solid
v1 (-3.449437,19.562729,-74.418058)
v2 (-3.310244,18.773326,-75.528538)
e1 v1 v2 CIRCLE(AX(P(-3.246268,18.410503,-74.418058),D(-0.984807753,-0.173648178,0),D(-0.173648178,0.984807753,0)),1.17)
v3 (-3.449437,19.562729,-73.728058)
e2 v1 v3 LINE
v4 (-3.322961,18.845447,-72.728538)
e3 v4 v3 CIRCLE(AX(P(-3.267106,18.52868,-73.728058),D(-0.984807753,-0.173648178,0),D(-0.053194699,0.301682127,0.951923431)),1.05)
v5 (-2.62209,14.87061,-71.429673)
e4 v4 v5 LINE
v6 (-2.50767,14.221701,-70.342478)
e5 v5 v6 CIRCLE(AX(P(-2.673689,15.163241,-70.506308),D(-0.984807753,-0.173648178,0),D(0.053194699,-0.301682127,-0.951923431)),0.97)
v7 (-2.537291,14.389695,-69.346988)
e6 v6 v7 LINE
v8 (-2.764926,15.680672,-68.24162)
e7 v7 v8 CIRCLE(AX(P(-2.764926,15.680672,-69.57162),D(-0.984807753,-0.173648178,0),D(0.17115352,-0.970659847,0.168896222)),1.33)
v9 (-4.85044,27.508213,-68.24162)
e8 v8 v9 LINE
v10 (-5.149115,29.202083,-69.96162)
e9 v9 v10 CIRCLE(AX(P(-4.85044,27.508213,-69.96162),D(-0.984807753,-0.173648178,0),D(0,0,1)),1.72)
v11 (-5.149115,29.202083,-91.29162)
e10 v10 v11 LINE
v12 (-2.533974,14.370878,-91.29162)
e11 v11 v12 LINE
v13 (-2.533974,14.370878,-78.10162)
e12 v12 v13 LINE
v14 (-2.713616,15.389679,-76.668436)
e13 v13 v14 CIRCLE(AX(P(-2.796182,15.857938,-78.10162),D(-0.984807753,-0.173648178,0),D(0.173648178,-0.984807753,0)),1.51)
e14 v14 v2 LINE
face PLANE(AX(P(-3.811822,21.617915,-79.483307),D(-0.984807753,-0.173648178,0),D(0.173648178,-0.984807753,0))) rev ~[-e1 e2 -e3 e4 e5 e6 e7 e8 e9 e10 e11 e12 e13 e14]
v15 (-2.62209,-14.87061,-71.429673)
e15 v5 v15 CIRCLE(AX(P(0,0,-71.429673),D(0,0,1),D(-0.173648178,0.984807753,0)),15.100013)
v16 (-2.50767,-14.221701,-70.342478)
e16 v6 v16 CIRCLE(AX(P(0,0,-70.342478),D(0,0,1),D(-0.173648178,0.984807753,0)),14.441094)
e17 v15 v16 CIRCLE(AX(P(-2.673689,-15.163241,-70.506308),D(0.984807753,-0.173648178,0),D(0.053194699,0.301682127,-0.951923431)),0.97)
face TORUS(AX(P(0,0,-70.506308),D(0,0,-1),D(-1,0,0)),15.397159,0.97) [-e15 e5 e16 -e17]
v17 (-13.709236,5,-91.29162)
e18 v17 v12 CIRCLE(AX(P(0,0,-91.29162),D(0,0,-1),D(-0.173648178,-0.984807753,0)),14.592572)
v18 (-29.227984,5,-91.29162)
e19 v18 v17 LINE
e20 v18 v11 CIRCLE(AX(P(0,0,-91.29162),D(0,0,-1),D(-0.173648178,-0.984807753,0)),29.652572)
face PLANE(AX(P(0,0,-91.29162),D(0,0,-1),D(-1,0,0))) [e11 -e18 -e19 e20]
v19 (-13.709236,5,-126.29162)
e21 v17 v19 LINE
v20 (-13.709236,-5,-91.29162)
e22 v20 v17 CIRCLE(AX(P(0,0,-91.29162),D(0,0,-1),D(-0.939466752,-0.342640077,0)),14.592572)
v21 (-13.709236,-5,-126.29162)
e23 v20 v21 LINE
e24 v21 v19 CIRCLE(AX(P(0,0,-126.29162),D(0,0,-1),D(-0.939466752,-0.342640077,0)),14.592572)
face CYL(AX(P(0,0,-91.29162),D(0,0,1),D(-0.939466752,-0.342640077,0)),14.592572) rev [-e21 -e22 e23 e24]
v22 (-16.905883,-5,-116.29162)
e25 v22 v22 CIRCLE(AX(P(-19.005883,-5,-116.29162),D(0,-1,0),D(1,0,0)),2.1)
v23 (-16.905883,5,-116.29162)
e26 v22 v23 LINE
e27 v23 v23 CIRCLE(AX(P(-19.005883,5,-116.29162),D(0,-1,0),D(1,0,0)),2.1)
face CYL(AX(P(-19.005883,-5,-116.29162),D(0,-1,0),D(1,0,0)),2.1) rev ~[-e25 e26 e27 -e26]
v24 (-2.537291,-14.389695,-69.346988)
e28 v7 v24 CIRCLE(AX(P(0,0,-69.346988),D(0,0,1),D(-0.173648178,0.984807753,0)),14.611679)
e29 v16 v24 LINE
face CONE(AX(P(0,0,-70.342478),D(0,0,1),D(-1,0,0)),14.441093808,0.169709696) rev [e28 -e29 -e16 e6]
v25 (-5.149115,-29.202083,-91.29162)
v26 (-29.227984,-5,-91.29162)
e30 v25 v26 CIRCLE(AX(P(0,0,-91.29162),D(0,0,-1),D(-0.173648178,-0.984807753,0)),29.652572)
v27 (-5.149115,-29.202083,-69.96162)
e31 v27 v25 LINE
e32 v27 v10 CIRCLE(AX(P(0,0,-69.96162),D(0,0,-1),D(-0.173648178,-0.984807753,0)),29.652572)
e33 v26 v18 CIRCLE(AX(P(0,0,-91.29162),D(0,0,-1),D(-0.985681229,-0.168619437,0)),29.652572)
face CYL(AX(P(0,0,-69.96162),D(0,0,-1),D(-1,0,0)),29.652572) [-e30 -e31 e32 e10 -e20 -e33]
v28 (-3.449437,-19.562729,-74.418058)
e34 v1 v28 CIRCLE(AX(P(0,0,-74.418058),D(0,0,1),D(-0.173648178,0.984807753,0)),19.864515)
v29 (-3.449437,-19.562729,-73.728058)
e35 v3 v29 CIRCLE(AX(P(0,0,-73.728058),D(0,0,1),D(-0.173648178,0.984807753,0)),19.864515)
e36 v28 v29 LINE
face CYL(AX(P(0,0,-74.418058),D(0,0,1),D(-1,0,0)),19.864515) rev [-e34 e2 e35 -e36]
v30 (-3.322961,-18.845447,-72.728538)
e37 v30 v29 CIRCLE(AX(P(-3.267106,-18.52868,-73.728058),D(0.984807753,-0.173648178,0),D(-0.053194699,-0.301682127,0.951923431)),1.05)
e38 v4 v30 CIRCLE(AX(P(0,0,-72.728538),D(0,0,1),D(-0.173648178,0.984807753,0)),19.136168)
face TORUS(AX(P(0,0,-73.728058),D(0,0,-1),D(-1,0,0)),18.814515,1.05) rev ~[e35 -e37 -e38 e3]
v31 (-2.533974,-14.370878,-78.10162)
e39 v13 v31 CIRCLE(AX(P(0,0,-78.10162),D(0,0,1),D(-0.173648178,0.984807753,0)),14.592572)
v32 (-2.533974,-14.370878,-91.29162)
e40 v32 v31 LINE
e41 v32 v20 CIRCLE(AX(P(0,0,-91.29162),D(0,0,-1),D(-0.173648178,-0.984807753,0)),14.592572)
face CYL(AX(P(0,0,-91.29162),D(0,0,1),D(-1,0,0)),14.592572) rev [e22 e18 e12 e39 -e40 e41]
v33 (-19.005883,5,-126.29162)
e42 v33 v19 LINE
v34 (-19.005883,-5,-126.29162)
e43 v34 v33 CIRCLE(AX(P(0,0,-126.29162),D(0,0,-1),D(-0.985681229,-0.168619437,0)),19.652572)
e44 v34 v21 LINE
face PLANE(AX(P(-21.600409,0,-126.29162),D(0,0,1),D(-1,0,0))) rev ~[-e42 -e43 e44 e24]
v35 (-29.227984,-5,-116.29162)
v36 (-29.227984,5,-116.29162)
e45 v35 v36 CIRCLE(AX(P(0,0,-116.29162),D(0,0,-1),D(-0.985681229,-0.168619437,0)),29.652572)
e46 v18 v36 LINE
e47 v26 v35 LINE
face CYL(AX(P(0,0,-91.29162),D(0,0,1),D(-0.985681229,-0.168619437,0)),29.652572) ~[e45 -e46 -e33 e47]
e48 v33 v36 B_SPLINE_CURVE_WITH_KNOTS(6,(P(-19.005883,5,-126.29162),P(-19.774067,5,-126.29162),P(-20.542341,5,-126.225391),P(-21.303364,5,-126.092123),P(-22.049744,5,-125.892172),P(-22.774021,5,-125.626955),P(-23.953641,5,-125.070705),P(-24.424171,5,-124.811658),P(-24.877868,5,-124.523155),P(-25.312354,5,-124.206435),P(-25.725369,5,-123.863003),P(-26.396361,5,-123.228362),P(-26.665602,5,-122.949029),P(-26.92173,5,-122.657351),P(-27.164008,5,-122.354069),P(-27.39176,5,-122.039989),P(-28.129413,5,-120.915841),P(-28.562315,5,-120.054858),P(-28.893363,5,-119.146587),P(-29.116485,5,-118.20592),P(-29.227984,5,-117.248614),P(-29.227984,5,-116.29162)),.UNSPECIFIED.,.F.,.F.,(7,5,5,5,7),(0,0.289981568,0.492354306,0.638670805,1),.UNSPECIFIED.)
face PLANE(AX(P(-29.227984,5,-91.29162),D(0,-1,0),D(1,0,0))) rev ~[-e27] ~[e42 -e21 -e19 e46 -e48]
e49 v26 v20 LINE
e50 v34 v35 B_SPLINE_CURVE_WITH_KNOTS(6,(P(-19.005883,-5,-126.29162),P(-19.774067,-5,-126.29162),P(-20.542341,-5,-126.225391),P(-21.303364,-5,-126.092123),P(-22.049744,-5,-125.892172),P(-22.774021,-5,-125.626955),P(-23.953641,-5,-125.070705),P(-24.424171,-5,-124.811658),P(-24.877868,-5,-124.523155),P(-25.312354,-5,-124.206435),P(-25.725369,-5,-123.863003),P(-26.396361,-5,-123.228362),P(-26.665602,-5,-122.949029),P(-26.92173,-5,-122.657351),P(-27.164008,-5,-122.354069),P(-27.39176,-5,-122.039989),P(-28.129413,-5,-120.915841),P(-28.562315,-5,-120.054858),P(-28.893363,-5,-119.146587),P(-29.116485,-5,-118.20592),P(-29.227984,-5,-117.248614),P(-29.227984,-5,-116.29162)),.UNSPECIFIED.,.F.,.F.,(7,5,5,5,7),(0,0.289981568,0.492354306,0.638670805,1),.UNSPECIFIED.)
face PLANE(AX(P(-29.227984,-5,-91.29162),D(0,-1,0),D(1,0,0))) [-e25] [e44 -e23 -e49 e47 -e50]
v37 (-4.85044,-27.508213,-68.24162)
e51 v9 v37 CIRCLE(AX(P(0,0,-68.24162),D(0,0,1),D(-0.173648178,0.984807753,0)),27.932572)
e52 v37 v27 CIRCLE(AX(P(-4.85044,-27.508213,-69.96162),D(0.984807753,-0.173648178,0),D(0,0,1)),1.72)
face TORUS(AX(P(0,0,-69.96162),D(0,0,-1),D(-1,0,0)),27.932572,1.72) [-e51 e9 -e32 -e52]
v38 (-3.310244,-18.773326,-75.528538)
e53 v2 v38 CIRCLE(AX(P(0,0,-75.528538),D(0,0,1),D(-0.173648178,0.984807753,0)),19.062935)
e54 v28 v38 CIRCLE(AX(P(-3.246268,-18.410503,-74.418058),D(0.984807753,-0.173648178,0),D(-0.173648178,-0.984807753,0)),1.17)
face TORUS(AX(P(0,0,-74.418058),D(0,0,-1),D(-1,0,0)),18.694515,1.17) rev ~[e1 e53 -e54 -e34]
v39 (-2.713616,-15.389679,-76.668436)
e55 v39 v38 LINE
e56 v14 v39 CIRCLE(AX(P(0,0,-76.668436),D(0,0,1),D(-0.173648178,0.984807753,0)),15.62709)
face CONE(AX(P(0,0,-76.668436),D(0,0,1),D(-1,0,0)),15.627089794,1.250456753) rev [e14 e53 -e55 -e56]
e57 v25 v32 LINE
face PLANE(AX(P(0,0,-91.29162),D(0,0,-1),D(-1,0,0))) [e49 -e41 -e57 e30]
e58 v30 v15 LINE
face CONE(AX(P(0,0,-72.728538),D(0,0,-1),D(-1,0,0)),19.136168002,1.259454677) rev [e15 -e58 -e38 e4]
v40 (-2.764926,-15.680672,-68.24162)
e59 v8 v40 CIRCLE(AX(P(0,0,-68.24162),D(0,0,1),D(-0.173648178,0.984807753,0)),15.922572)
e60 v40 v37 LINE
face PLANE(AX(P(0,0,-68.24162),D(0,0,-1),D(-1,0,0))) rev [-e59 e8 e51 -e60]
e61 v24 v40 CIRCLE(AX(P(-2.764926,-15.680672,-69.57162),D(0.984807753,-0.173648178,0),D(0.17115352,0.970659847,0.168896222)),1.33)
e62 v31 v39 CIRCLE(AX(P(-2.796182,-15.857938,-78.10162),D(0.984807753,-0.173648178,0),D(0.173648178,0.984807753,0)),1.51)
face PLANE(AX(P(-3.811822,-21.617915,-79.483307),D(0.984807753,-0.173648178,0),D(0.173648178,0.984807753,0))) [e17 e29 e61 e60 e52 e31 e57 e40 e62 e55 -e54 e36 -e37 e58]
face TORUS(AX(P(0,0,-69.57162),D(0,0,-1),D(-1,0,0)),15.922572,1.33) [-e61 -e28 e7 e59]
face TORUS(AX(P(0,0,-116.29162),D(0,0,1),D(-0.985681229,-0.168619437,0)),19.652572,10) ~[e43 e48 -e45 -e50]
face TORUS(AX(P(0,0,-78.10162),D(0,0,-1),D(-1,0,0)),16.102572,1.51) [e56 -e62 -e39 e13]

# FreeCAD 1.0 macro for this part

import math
import FreeCAD as App
import Part
import Sketcher

V = App.Vector
Q = App.Units.Quantity


def edges_at(feature, points):
    """Names of the edges that pass closest to the given points."""
    edges = feature.Shape.Edges
    near = lambda p: min(range(len(edges)), key=lambda i: edges[i].distToShape(Part.Vertex(*p))[0])
    return sorted({f"Edge{near(p) + 1}" for p in points})

doc = App.newDocument("Part")
params = doc.addObject("Spreadsheet::Sheet", "Params")
for row, (alias, value) in enumerate([
    ("sketch1_radius", "1.51 mm"),
    ("sketch1_radius2", "1.17 mm"),
    ("sketch1_radius3", "1.05 mm"),
    ("sketch1_radius4", "0.97 mm"),
    ("sketch1_radius5", "1.33 mm"),
    ("revolution_angle", "80 deg"),
    ("sketch2_radius", "1.51 mm"),
    ("sketch2_radius2", "1.17 mm"),
    ("sketch2_radius3", "1.05 mm"),
    ("sketch2_radius4", "0.97 mm"),
    ("sketch2_radius5", "1.33 mm"),
    ("revolution2_angle", "80 deg"),
    ("pad1_length", "35 mm"),
    ("fillet_radius", "10 mm"),
    ("sketch4_diameter", "4.2 mm"),
], start=1):
    params.set(f"A{row}", alias)
    params.set(f"B{row}", "=" + value)
    params.setAlias(f"B{row}", alias)

body = doc.addObject("PartDesign::Body", "Body")

# Sketch on XZ plane
sketch1 = body.newObject("Sketcher::SketchObject", "Sketch")
sketch1.AttachmentSupport = (doc.getObject("XZ_Plane"), [""])
sketch1.MapMode = "FlatFace"
sketch1.addGeometry([
    Part.LineSegment(V(-14.6, -91.3, 0), V(-14.6, -78.1, 0)),  # 0
    Part.ArcOfCircle(Part.Circle(V(-16.1, -78.1, 0), V(0, 0, 1), 1.5), math.radians(0), math.radians(72)),  # 1
    Part.LineSegment(V(-15.6, -76.7, 0), V(-19.1, -75.5, 0)),  # 2
    Part.ArcOfCircle(Part.Circle(V(-18.7, -74.4, 0), V(0, 0, 1), 1.2), math.radians(180), math.radians(252)),  # 3
    Part.LineSegment(V(-19.9, -74.4, 0), V(-19.9, -73.7, 0)),  # 4
    Part.ArcOfCircle(Part.Circle(V(-18.8, -73.7, 0), V(0, 0, 1), 1.1), math.radians(108), math.radians(180)),  # 5
    Part.LineSegment(V(-19.1, -72.7, 0), V(-15.1, -71.4, 0)),  # 6
    Part.ArcOfCircle(Part.Circle(V(-15.4, -70.5, 0), V(0, 0, 1), 1), math.radians(-72), math.radians(10)),  # 7
    Part.LineSegment(V(-14.4, -70.3, 0), V(-14.6, -69.3, 0)),  # 8
    Part.ArcOfCircle(Part.Circle(V(-15.9, -69.6, 0), V(0, 0, 1), 1.3), math.radians(10), math.radians(90)),  # 9
    Part.LineSegment(V(-15.9, -68.2, 0), V(-27.9, -68.2, 0)),  # 10
    Part.ArcOfCircle(Part.Circle(V(-27.9, -70, 0), V(0, 0, 1), 1.7), math.radians(90), math.radians(180)),  # 11
    Part.LineSegment(V(-29.7, -70, 0), V(-29.7, -91.3, 0)),  # 12
    Part.LineSegment(V(-29.7, -91.3, 0), V(-14.6, -91.3, 0)),  # 13
], False)
sketch1.addConstraint([
    Sketcher.Constraint("Tangent", 0, 2, 1, 1),
    Sketcher.Constraint("Tangent", 1, 2, 2, 1),
    Sketcher.Constraint("Tangent", 2, 2, 3, 2),
    Sketcher.Constraint("Tangent", 3, 1, 4, 1),
    Sketcher.Constraint("Tangent", 4, 2, 5, 2),
    Sketcher.Constraint("Tangent", 5, 1, 6, 1),
    Sketcher.Constraint("Tangent", 6, 2, 7, 1),
    Sketcher.Constraint("Tangent", 7, 2, 8, 1),
    Sketcher.Constraint("Tangent", 8, 2, 9, 1),
    Sketcher.Constraint("Tangent", 9, 2, 10, 1),
    Sketcher.Constraint("Tangent", 10, 2, 11, 1),
    Sketcher.Constraint("Tangent", 11, 2, 12, 1),
    Sketcher.Constraint("Coincident", 12, 2, 13, 1),
    Sketcher.Constraint("Coincident", 13, 2, 0, 1),
    Sketcher.Constraint("Vertical", 0),
    Sketcher.Constraint("Vertical", 4),
    Sketcher.Constraint("Horizontal", 10),
    Sketcher.Constraint("Vertical", 12),
    Sketcher.Constraint("Horizontal", 13),
    Sketcher.Constraint("Radius", 1, Q("1.51 mm")),
    Sketcher.Constraint("Radius", 3, Q("1.17 mm")),
    Sketcher.Constraint("Radius", 5, Q("1.05 mm")),
    Sketcher.Constraint("Radius", 7, Q("0.97 mm")),
    Sketcher.Constraint("Radius", 9, Q("1.33 mm")),
    Sketcher.Constraint("Radius", 11, Q("1.72 mm")),
    Sketcher.Constraint("DistanceX", 10, 2, 10, 1, Q("12.01 mm")),
    Sketcher.Constraint("DistanceX", 13, 1, 13, 2, Q("15.06 mm")),
    Sketcher.Constraint("DistanceY", 0, 1, 0, 2, Q("13.19 mm")),
    Sketcher.Constraint("DistanceY", 4, 1, 4, 2, Q("0.69 mm")),
    Sketcher.Constraint("DistanceY", 12, 2, 12, 1, Q("21.33 mm")),
    Sketcher.Constraint("DistanceY", 2, 2, 5, 1, Q("2.8 mm")),
    Sketcher.Constraint("Distance", 2, Q("3.62 mm")),
    Sketcher.Constraint("Distance", 6, Q("4.24 mm")),
    Sketcher.Constraint("Distance", 8, Q("1.01 mm")),
    Sketcher.Constraint("DistanceX", 1, 3, -1, 1, Q("16.102572 mm")),
    Sketcher.Constraint("DistanceY", 1, 3, -1, 1, Q("78.10162 mm")),
])
sketch1.setExpression("Constraints[19]", "Params.sketch1_radius")
sketch1.setExpression("Constraints[20]", "Params.sketch1_radius2")
sketch1.setExpression("Constraints[21]", "Params.sketch1_radius3")
sketch1.setExpression("Constraints[22]", "Params.sketch1_radius4")
sketch1.setExpression("Constraints[23]", "Params.sketch1_radius5")
revolution = body.newObject("PartDesign::Revolution", "Revolution")
revolution.Profile = sketch1
revolution.ReferenceAxis = (sketch1, ["V_Axis"])
revolution.setExpression("Angle", "Params.revolution_angle")

# Sketch on XZ plane
sketch2 = body.newObject("Sketcher::SketchObject", "Sketch001")
sketch2.AttachmentSupport = (doc.getObject("XZ_Plane"), [""])
sketch2.MapMode = "FlatFace"
sketch2.addGeometry([
    Part.LineSegment(V(-14.6, -91.3, 0), V(-14.6, -78.1, 0)),  # 0
    Part.ArcOfCircle(Part.Circle(V(-16.1, -78.1, 0), V(0, 0, 1), 1.5), math.radians(0), math.radians(72)),  # 1
    Part.LineSegment(V(-15.6, -76.7, 0), V(-19.1, -75.5, 0)),  # 2
    Part.ArcOfCircle(Part.Circle(V(-18.7, -74.4, 0), V(0, 0, 1), 1.2), math.radians(180), math.radians(252)),  # 3
    Part.LineSegment(V(-19.9, -74.4, 0), V(-19.9, -73.7, 0)),  # 4
    Part.ArcOfCircle(Part.Circle(V(-18.8, -73.7, 0), V(0, 0, 1), 1.1), math.radians(108), math.radians(180)),  # 5
    Part.LineSegment(V(-19.1, -72.7, 0), V(-15.1, -71.4, 0)),  # 6
    Part.ArcOfCircle(Part.Circle(V(-15.4, -70.5, 0), V(0, 0, 1), 1), math.radians(-72), math.radians(10)),  # 7
    Part.LineSegment(V(-14.4, -70.3, 0), V(-14.6, -69.3, 0)),  # 8
    Part.ArcOfCircle(Part.Circle(V(-15.9, -69.6, 0), V(0, 0, 1), 1.3), math.radians(10), math.radians(90)),  # 9
    Part.LineSegment(V(-15.9, -68.2, 0), V(-27.9, -68.2, 0)),  # 10
    Part.ArcOfCircle(Part.Circle(V(-27.9, -70, 0), V(0, 0, 1), 1.7), math.radians(90), math.radians(180)),  # 11
    Part.LineSegment(V(-29.7, -70, 0), V(-29.7, -91.3, 0)),  # 12
    Part.LineSegment(V(-29.7, -91.3, 0), V(-14.6, -91.3, 0)),  # 13
], False)
sketch2.addConstraint([
    Sketcher.Constraint("Tangent", 0, 2, 1, 1),
    Sketcher.Constraint("Tangent", 1, 2, 2, 1),
    Sketcher.Constraint("Tangent", 2, 2, 3, 2),
    Sketcher.Constraint("Tangent", 3, 1, 4, 1),
    Sketcher.Constraint("Tangent", 4, 2, 5, 2),
    Sketcher.Constraint("Tangent", 5, 1, 6, 1),
    Sketcher.Constraint("Tangent", 6, 2, 7, 1),
    Sketcher.Constraint("Tangent", 7, 2, 8, 1),
    Sketcher.Constraint("Tangent", 8, 2, 9, 1),
    Sketcher.Constraint("Tangent", 9, 2, 10, 1),
    Sketcher.Constraint("Tangent", 10, 2, 11, 1),
    Sketcher.Constraint("Tangent", 11, 2, 12, 1),
    Sketcher.Constraint("Coincident", 12, 2, 13, 1),
    Sketcher.Constraint("Coincident", 13, 2, 0, 1),
    Sketcher.Constraint("Vertical", 0),
    Sketcher.Constraint("Vertical", 4),
    Sketcher.Constraint("Horizontal", 10),
    Sketcher.Constraint("Vertical", 12),
    Sketcher.Constraint("Horizontal", 13),
    Sketcher.Constraint("Radius", 1, Q("1.51 mm")),
    Sketcher.Constraint("Radius", 3, Q("1.17 mm")),
    Sketcher.Constraint("Radius", 5, Q("1.05 mm")),
    Sketcher.Constraint("Radius", 7, Q("0.97 mm")),
    Sketcher.Constraint("Radius", 9, Q("1.33 mm")),
    Sketcher.Constraint("Radius", 11, Q("1.72 mm")),
    Sketcher.Constraint("DistanceX", 10, 2, 10, 1, Q("12.01 mm")),
    Sketcher.Constraint("DistanceX", 13, 1, 13, 2, Q("15.06 mm")),
    Sketcher.Constraint("DistanceY", 0, 1, 0, 2, Q("13.19 mm")),
    Sketcher.Constraint("DistanceY", 4, 1, 4, 2, Q("0.69 mm")),
    Sketcher.Constraint("DistanceY", 12, 2, 12, 1, Q("21.33 mm")),
    Sketcher.Constraint("DistanceY", 2, 2, 5, 1, Q("2.8 mm")),
    Sketcher.Constraint("Distance", 2, Q("3.62 mm")),
    Sketcher.Constraint("Distance", 6, Q("4.24 mm")),
    Sketcher.Constraint("Distance", 8, Q("1.01 mm")),
    Sketcher.Constraint("DistanceX", 1, 3, -1, 1, Q("16.102572 mm")),
    Sketcher.Constraint("DistanceY", 1, 3, -1, 1, Q("78.10162 mm")),
])
sketch2.setExpression("Constraints[19]", "Params.sketch2_radius")
sketch2.setExpression("Constraints[20]", "Params.sketch2_radius2")
sketch2.setExpression("Constraints[21]", "Params.sketch2_radius3")
sketch2.setExpression("Constraints[22]", "Params.sketch2_radius4")
sketch2.setExpression("Constraints[23]", "Params.sketch2_radius5")
revolution2 = body.newObject("PartDesign::Revolution", "Revolution001")
revolution2.Profile = sketch2
revolution2.ReferenceAxis = (sketch2, ["V_Axis"])
revolution2.setExpression("Angle", "Params.revolution2_angle")
revolution2.Reversed = True

# Sketch on XY plane
sketch3 = body.newObject("Sketcher::SketchObject", "Sketch002")
sketch3.AttachmentSupport = (doc.getObject("XY_Plane"), [""])
sketch3.MapMode = "FlatFace"
sketch3.AttachmentOffset = App.Placement(V(0, 0, -91.29162), App.Rotation())
sketch3.addGeometry([
    Part.LineSegment(V(-14, -5, 0), V(-29, -5, 0)),
    Part.ArcOfCircle(Part.Circle(V(0, 0, 0), V(0, 0, 1), 30), math.radians(170.29), math.radians(189.71)),
    Part.LineSegment(V(-29, 5, 0), V(-14, 5, 0)),
    Part.ArcOfCircle(Part.Circle(V(0, 0, 0), V(0, 0, 1), 15), math.radians(160), math.radians(200)),
], False)
sketch3.addConstraint([
    Sketcher.Constraint("Coincident", 0, 2, 1, 2),
    Sketcher.Constraint("Coincident", 1, 1, 2, 1),
    Sketcher.Constraint("Coincident", 2, 2, 3, 1),
    Sketcher.Constraint("Coincident", 3, 2, 0, 1),
    Sketcher.Constraint("Horizontal", 0),
    Sketcher.Constraint("Horizontal", 2),
    Sketcher.Constraint("Coincident", 1, 3, -1, 1),
    Sketcher.Constraint("Coincident", 3, 3, -1, 1),
    Sketcher.Constraint("Vertical", 0, 2, 1, 1),
    Sketcher.Constraint("DistanceY", 0, 2, -1, 1, Q("5 mm")),
    Sketcher.Constraint("Radius", 3, Q("14.592572 mm")),
    Sketcher.Constraint("Radius", 1, Q("29.652572 mm")),
])
pad1 = body.newObject("PartDesign::Pad", "Pad")
pad1.Profile = sketch3
pad1.setExpression("Length", "Params.pad1_length")
pad1.Reversed = True
doc.recompute()

fillet = body.newObject("PartDesign::Fillet", "Fillet")
fillet.Base = (pad1, edges_at(pad1, [(-29.653, 0, -126.292)]))
fillet.setExpression("Radius", "Params.fillet_radius")

# Sketch on XZ plane
sketch4 = body.newObject("Sketcher::SketchObject", "Sketch003")
sketch4.AttachmentSupport = (doc.getObject("XZ_Plane"), [""])
sketch4.MapMode = "FlatFace"
sketch4.AttachmentOffset = App.Placement(V(0, 0, 5), App.Rotation())
sketch4.addGeometry(Part.Circle(V(-19, -116.3, 0), V(0, 0, 1), 2.1), False)
sketch4.addConstraint([
    Sketcher.Constraint("Diameter", 0, Q("4.2 mm")),
    Sketcher.Constraint("DistanceY", 0, 3, -1, 1, Q("116.29162 mm")),
    Sketcher.Constraint("DistanceX", 0, 3, -1, 1, Q("19.005883 mm")),
])
sketch4.setExpression("Constraints[0]", "Params.sketch4_diameter")
pocket1 = body.newObject("PartDesign::Pocket", "Pocket")
pocket1.Profile = sketch4
pocket1.Type = "ThroughAll"

doc.recompute()
